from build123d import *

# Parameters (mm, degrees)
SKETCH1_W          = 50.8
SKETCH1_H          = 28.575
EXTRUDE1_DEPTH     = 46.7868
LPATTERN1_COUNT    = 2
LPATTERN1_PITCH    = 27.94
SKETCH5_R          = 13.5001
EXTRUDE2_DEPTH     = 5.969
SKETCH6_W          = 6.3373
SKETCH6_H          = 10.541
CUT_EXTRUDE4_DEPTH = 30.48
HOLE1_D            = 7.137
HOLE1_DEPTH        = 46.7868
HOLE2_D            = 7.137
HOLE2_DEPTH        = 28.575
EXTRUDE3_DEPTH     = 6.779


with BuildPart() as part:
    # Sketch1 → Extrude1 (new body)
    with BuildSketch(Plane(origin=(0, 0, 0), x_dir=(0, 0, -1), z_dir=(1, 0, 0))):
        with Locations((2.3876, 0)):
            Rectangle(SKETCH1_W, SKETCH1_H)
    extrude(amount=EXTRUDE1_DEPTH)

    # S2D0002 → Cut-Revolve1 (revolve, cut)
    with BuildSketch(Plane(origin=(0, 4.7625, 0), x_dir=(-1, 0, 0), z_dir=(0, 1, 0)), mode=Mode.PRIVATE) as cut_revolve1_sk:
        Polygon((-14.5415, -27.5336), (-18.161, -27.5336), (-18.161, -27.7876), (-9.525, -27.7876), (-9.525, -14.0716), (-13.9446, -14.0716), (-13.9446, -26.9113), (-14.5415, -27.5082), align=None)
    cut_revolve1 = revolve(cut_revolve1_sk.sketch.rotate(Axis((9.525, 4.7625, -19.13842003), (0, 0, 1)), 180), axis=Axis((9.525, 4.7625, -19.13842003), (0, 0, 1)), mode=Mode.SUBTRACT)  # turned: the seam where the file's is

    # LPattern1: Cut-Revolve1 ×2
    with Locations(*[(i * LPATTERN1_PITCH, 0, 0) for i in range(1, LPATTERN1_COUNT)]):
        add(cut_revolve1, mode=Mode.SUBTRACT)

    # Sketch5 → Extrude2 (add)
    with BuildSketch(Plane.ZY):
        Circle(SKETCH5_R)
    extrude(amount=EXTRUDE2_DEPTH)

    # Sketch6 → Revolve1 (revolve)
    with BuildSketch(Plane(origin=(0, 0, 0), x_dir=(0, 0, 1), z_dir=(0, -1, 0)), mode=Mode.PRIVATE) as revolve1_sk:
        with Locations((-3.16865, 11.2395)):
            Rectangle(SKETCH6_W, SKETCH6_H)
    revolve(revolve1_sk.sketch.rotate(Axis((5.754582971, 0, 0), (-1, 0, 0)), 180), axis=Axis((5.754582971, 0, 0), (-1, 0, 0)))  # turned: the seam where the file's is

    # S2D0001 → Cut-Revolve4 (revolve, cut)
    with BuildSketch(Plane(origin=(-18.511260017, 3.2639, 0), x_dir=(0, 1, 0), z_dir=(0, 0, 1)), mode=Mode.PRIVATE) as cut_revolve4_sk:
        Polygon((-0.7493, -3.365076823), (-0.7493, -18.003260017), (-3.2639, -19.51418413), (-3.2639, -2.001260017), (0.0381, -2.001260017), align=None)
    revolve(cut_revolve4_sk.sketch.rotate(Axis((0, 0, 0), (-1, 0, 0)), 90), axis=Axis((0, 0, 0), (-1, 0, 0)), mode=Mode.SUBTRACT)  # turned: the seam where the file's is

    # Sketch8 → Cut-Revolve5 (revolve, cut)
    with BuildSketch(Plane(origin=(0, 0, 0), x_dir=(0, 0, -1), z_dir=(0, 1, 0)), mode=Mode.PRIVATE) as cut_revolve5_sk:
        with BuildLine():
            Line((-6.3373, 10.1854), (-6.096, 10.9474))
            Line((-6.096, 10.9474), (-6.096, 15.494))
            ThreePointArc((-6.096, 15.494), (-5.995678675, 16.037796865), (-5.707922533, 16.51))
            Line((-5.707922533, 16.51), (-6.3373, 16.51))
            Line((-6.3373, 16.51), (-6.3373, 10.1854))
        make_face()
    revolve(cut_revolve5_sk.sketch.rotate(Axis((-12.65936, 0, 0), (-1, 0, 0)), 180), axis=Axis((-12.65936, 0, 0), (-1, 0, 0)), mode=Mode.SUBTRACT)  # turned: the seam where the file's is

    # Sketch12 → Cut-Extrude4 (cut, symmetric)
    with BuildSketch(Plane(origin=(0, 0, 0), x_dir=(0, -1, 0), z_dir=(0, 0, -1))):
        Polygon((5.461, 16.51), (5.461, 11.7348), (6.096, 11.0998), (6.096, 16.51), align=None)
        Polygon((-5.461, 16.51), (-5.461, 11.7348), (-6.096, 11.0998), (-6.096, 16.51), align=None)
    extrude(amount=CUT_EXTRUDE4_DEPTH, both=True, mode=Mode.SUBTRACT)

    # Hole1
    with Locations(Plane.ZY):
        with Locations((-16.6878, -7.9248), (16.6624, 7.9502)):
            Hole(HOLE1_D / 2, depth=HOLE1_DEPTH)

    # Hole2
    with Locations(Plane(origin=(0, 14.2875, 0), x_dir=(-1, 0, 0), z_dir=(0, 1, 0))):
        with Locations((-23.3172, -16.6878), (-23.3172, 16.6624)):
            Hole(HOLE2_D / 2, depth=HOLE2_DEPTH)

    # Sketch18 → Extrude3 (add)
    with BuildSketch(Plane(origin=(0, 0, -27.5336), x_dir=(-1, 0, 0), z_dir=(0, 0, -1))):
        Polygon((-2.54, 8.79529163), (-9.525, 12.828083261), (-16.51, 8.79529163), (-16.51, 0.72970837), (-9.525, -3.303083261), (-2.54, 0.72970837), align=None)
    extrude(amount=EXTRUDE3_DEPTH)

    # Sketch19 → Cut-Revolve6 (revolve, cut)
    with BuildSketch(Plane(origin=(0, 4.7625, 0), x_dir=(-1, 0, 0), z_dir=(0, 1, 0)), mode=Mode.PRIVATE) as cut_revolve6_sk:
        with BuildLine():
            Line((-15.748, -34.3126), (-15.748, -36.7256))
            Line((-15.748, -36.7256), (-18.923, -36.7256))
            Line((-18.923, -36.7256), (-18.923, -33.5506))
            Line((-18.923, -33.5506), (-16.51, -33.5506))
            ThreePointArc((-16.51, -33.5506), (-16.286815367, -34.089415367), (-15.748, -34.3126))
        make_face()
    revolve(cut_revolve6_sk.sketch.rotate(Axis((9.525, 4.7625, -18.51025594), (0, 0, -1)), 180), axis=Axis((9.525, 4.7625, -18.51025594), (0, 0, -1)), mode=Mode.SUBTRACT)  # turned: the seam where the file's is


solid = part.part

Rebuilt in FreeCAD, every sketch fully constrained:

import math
import FreeCAD as App
import Part
import Sketcher
from FreeCAD import Vector
Q = App.Units.Quantity


def add_polygon(sketch, points):
    """Adds a closed chain of lines whose ends are joined by coincident constraints."""
    first, n = sketch.GeometryCount, len(points)
    for a, b in zip(points, points[1:] + points[:1]):
        sketch.addGeometry(Part.LineSegment(App.Vector(*a, 0), App.Vector(*b, 0)), False)
    for i in range(n):
        sketch.addConstraint(Sketcher.Constraint("Coincident", first + i, 2, first + (i + 1) % n, 1))

doc = App.newDocument("Part")
body = doc.addObject("PartDesign::Body", "Body")

sketch1 = body.newObject("Sketcher::SketchObject", "Sketch")
sketch1.AttachmentSupport = (doc.getObject("YZ_Plane"), [""])
sketch1.MapMode = "FlatFace"
add_polygon(sketch1, [(14, 23), (-14, 23), (-14, -28), (14, -28)])
sketch1.addConstraint([
    Sketcher.Constraint("Horizontal", 0),
    Sketcher.Constraint("Vertical", 1),
    Sketcher.Constraint("Horizontal", 2),
    Sketcher.Constraint("Vertical", 3),
    Sketcher.Constraint("DistanceY", 1, 2, 1, 1, Q("2 in")),
    Sketcher.Constraint("DistanceX", 0, 2, 0, 1, Q("1.125 in")),
    Sketcher.Constraint("DistanceX", 0, 2, -1, 1, Q("0.5625 in")),
    Sketcher.Constraint("DistanceY", -1, 1, 0, 2, Q("0.906 in")),
])
pad1 = body.newObject("PartDesign::Pad", "Pad")
pad1.Profile = sketch1
pad1.Length = Q("1.842 in")

sketch2 = body.newObject("Sketcher::SketchObject", "Sketch001")
sketch2.AttachmentSupport = (doc.getObject("XZ_Plane"), [""])
sketch2.MapMode = "FlatFace"
sketch2.AttachmentOffset = App.Placement(Vector(0, 0, -0.1875 * 25.4), App.Rotation())
add_polygon(sketch2, [(14.541, -27.534), (18.161, -27.534), (18.161, -27.788), (9.525, -27.788), (9.525, -14.072), (13.945, -14.072), (13.945, -26.911), (14.541, -27.508)])
sketch2.addGeometry(Part.LineSegment(Vector(9.525, -27.788, 0), Vector(9.525, -14.072, 0)), True)
sketch2.addConstraint([
    Sketcher.Constraint("Horizontal", 0),
    Sketcher.Constraint("Vertical", 1),
    Sketcher.Constraint("Horizontal", 2),
    Sketcher.Constraint("Vertical", 3),
    Sketcher.Constraint("Horizontal", 4),
    Sketcher.Constraint("Vertical", 5),
    Sketcher.Constraint("Vertical", 7),
    Sketcher.Constraint("Vertical", 8),
    Sketcher.Constraint("Coincident", 8, 1, 2, 2),
    Sketcher.Constraint("Horizontal", 4, 2, 8, 2),
    Sketcher.Constraint("Angle", 6, Q("-45 deg")),
    Sketcher.Constraint("DistanceX", 2, 2, 2, 1, Q("0.34 in")),
    Sketcher.Constraint("DistanceY", 1, 2, 1, 1, Q("0.01 in")),
    Sketcher.Constraint("DistanceY", 3, 1, 3, 2, Q("0.54 in")),
    Sketcher.Constraint("DistanceX", 4, 1, 4, 2, Q("0.174 in")),
    Sketcher.Constraint("DistanceY", 7, 2, 7, 1, Q("0.001 in")),
    Sketcher.Constraint("DistanceX", 0, 1, 0, 2, Q("0.1425 in")),
    Sketcher.Constraint("DistanceX", -1, 1, 0, 2, Q("0.715 in")),
    Sketcher.Constraint("DistanceY", 0, 2, -1, 1, Q("1.084 in")),
])
groove = body.newObject("PartDesign::Groove", "Groove")
groove.Profile = sketch2
groove.ReferenceAxis = (sketch2, ["Axis0"])
groove.Angle = 360
doc.recompute()

linearpattern = body.newObject("PartDesign::LinearPattern", "LinearPattern")
linearpattern.Originals = [groove]
linearpattern.Direction = (doc.getObject("X_Axis"), [""])
linearpattern.Mode = "offset"
linearpattern.Offset = Q("1.1 in")
linearpattern.Occurrences = 2
body.Tip = linearpattern

sketch3 = body.newObject("Sketcher::SketchObject", "Sketch002")
sketch3.AttachmentSupport = (doc.getObject("YZ_Plane"), [""])
sketch3.MapMode = "FlatFace"
sketch3.addGeometry(Part.Circle(Vector(0, 0, 0), Vector(0, 0, 1), 14), False)
sketch3.addConstraint([
    Sketcher.Constraint("Coincident", 0, 3, -1, 1),
    Sketcher.Constraint("Diameter", 0, Q("1.063 in")),
])
pad2 = body.newObject("PartDesign::Pad", "Pad001")
pad2.Profile = sketch3
pad2.Length = Q("0.235 in")
pad2.Reversed = True

sketch4 = body.newObject("Sketcher::SketchObject", "Sketch003")
sketch4.AttachmentSupport = (doc.getObject("XZ_Plane"), [""])
sketch4.MapMode = "FlatFace"
add_polygon(sketch4, [(-17, -6), (-6, -6), (-6, 0), (-17, 0)])
sketch4.addConstraint([
    Sketcher.Constraint("Horizontal", 0),
    Sketcher.Constraint("Vertical", 1),
    Sketcher.Constraint("Horizontal", 2),
    Sketcher.Constraint("Vertical", 3),
    Sketcher.Constraint("PointOnObject", 1, 2, -1),
    Sketcher.Constraint("DistanceX", 0, 1, 0, 2, Q("0.415 in")),
    Sketcher.Constraint("DistanceX", 2, 2, -1, 1, Q("0.65 in")),
    Sketcher.Constraint("DistanceY", 1, 1, 1, 2, Q("0.2495 in")),
])
revolution = body.newObject("PartDesign::Revolution", "Revolution")
revolution.Profile = sketch4
revolution.ReferenceAxis = (sketch4, ["H_Axis"])
revolution.Angle = 360

sketch5 = body.newObject("Sketcher::SketchObject", "Sketch004")
sketch5.AttachmentSupport = (doc.getObject("XY_Plane"), [""])
sketch5.MapMode = "FlatFace"
add_polygon(sketch5, [(-0.5, 2.5), (-15.1, 2.5), (-16.5, 3.3), (-16.5, 0), (1, 0)])
sketch5.addConstraint([
    Sketcher.Constraint("Horizontal", 0),
    Sketcher.Constraint("Vertical", 2),
    Sketcher.Constraint("Horizontal", 3),
    Sketcher.Constraint("PointOnObject", 2, 2, -1),
    Sketcher.Constraint("Angle", 1, Q("150 deg")),
    Sketcher.Constraint("Angle", 4, Q("121 deg")),
    Sketcher.Constraint("DistanceY", 2, 2, 2, 1, Q("0.13 in")),
    Sketcher.Constraint("DistanceX", 1, 2, -1, 1, Q("0.65 in")),
    Sketcher.Constraint("DistanceX", 4, 2, -1, 1, Q("0.02 in")),
    Sketcher.Constraint("Distance", 1, Q("0.062 in")),
])
groove2 = body.newObject("PartDesign::Groove", "Groove001")
groove2.Profile = sketch5
groove2.ReferenceAxis = (sketch5, ["H_Axis"])
groove2.Angle = 360

sketch6 = body.newObject("Sketcher::SketchObject", "Sketch005")
sketch6.AttachmentSupport = (doc.getObject("XZ_Plane"), [""])
sketch6.MapMode = "FlatFace"
sketch6.addGeometry([
    Part.LineSegment(Vector(-10.2, 6.3, 0), Vector(-10.9, 6.1, 0)),
    Part.LineSegment(Vector(-10.9, 6.1, 0), Vector(-15.5, 6.1, 0)),
    Part.ArcOfCircle(Part.Circle(Vector(-15.5, 4.6, 0), Vector(0, 0, 1), 1.5), math.radians(90), math.radians(132)),
    Part.LineSegment(Vector(-16.5, 5.7, 0), Vector(-16.5, 6.3, 0)),
    Part.LineSegment(Vector(-16.5, 6.3, 0), Vector(-10.2, 6.3, 0)),
], False)
sketch6.addConstraint([
    Sketcher.Constraint("Coincident", 0, 2, 1, 1),
    Sketcher.Constraint("Tangent", 1, 2, 2, 1),
    Sketcher.Constraint("Coincident", 2, 2, 3, 1),
    Sketcher.Constraint("Coincident", 3, 2, 4, 1),
    Sketcher.Constraint("Coincident", 4, 2, 0, 1),
    Sketcher.Constraint("Horizontal", 1),
    Sketcher.Constraint("Vertical", 3),
    Sketcher.Constraint("Horizontal", 4),
    Sketcher.Constraint("Radius", 2, Q("0.06 in")),
    Sketcher.Constraint("DistanceX", 1, 2, 1, 1, Q("0.179 in")),
    Sketcher.Constraint("DistanceX", 4, 1, 4, 2, Q("0.249 in")),
    Sketcher.Constraint("DistanceX", 2, 3, -1, 1, Q("0.61 in")),
    Sketcher.Constraint("DistanceY", -1, 1, 2, 3, Q("0.18 in")),
    Sketcher.Constraint("DistanceX", 2, 2, -1, 1, Q("0.65 in")),
    Sketcher.Constraint("DistanceY", -1, 1, 3, 2, Q("0.2495 in")),
])
groove3 = body.newObject("PartDesign::Groove", "Groove002")
groove3.Profile = sketch6
groove3.ReferenceAxis = (sketch6, ["H_Axis"])
groove3.Angle = 360

sketch7 = body.newObject("Sketcher::SketchObject", "Sketch006")
sketch7.AttachmentSupport = (doc.getObject("XY_Plane"), [""])
sketch7.MapMode = "FlatFace"
add_polygon(sketch7, [(-16.5, -5.5), (-11.7, -5.5), (-11.1, -6.1), (-16.5, -6.1)])
add_polygon(sketch7, [(-11.7, 5.5), (-16.5, 5.5), (-16.5, 6.1), (-11.1, 6.1)])
sketch7.addConstraint([
    Sketcher.Constraint("Horizontal", 0),
    Sketcher.Constraint("Horizontal", 2),
    Sketcher.Constraint("Vertical", 3),
    Sketcher.Constraint("Horizontal", 4),
    Sketcher.Constraint("Vertical", 5),
    Sketcher.Constraint("Horizontal", 6),
    Sketcher.Constraint("Symmetric", 3, 2, 4, 2, -1),
    Sketcher.Constraint("Symmetric", 1, 2, 6, 2, -1),
    Sketcher.Constraint("Perpendicular", 1, 7),
    Sketcher.Constraint("Vertical", 0, 2, 7, 2),
    Sketcher.Constraint("DistanceX", 0, 1, 0, 2, Q("0.188 in")),
    Sketcher.Constraint("DistanceX", 2, 2, 2, 1, Q("0.213 in")),
    Sketcher.Constraint("DistanceY", 1, 2, -1, 1, Q("0.24 in")),
    Sketcher.Constraint("DistanceX", 2, 2, -1, 1, Q("0.65 in")),
])
pocket1 = body.newObject("PartDesign::Pocket", "Pocket")
pocket1.Profile = sketch7
pocket1.Length = Q("2.4 in")
pocket1.Midplane = True

sketch8 = body.newObject("Sketcher::SketchObject", "Sketch007")
sketch8.AttachmentSupport = (doc.getObject("YZ_Plane"), [""])
sketch8.MapMode = "FlatFace"
sketch8.addGeometry([
    Part.Circle(Vector(-7.9, -16.7, 0), Vector(0, 0, 1), 3.6),
    Part.Circle(Vector(8, 16.7, 0), Vector(0, 0, 1), 3.6),
], False)
sketch8.addConstraint([
    Sketcher.Constraint("Equal", 0, 1),
    Sketcher.Constraint("Diameter", 0, 7.137),
    Sketcher.Constraint("DistanceX", 0, 3, -1, 1, Q("0.312 in")),
    Sketcher.Constraint("DistanceY", 0, 3, -1, 1, Q("0.657 in")),
    Sketcher.Constraint("DistanceX", -1, 1, 1, 3, Q("0.313 in")),
    Sketcher.Constraint("DistanceY", -1, 1, 1, 3, Q("0.656 in")),
])
doc.recompute()
hole = body.newObject("PartDesign::Hole", "Hole")
hole.Profile = sketch8
hole.ThreadType = "None"
hole.Diameter = 7.137
hole.DepthType = "Dimension"
hole.Depth = Q("1.842 in")
hole.DrillPoint = "Flat"
hole.Reversed = True

sketch9 = body.newObject("Sketcher::SketchObject", "Sketch008")
sketch9.AttachmentSupport = (doc.getObject("XZ_Plane"), [""])
sketch9.MapMode = "FlatFace"
sketch9.AttachmentOffset = App.Placement(Vector(0, 0, -0.5625 * 25.4), App.Rotation())
sketch9.addGeometry([
    Part.Circle(Vector(23.3, -16.7, 0), Vector(0, 0, 1), 3.6),
    Part.Circle(Vector(23.3, 16.7, 0), Vector(0, 0, 1), 3.6),
], False)
sketch9.addConstraint([
    Sketcher.Constraint("Equal", 0, 1),
    Sketcher.Constraint("Vertical", 0, 3, 1, 3),
    Sketcher.Constraint("Diameter", 0, 7.137),
    Sketcher.Constraint("DistanceX", -1, 1, 0, 3, Q("0.918 in")),
    Sketcher.Constraint("DistanceY", 0, 3, -1, 1, Q("0.657 in")),
    Sketcher.Constraint("DistanceY", -1, 1, 1, 3, Q("0.656 in")),
])
doc.recompute()
hole2 = body.newObject("PartDesign::Hole", "Hole001")
hole2.Profile = sketch9
hole2.ThreadType = "None"
hole2.Diameter = 7.137
hole2.DepthType = "Dimension"
hole2.Depth = Q("1.125 in")
hole2.DrillPoint = "Flat"
hole2.Reversed = True

sketch10 = body.newObject("Sketcher::SketchObject", "Sketch009")
sketch10.AttachmentSupport = (doc.getObject("XY_Plane"), [""])
sketch10.MapMode = "FlatFace"
sketch10.AttachmentOffset = App.Placement(Vector(0, 0, -1.084 * 25.4), App.Rotation())
add_polygon(sketch10, [(3, 9), (10, 13), (17, 9), (17, 1), (10, -3), (3, 1)])
sketch10.addConstraint([
    Sketcher.Constraint("Vertical", 2),
    Sketcher.Constraint("Vertical", 5),
    Sketcher.Constraint("Parallel", 0, 3),
    Sketcher.Constraint("Parallel", 1, 4),
    Sketcher.Constraint("Horizontal", 2, 2, 4, 2),
    Sketcher.Constraint("Horizontal", 1, 2, 5, 2),
    Sketcher.Constraint("Vertical", 0, 2, 3, 2),
    Sketcher.Constraint("Angle", 0, Q("30 deg")),
    Sketcher.Constraint("DistanceX", -1, 1, 4, 2, Q("0.1 in")),
    Sketcher.Constraint("DistanceX", -1, 1, 1, 2, Q("0.65 in")),
    Sketcher.Constraint("DistanceY", 2, 2, 2, 1, 8.065583),
    Sketcher.Constraint("DistanceY", -1, 1, 1, 2, 8.795292),
])
pad3 = body.newObject("PartDesign::Pad", "Pad002")
pad3.Profile = sketch10
pad3.Length = 6.779
pad3.Reversed = True

sketch11 = body.newObject("Sketcher::SketchObject", "Sketch010")
sketch11.AttachmentSupport = (doc.getObject("XZ_Plane"), [""])
sketch11.MapMode = "FlatFace"
sketch11.AttachmentOffset = App.Placement(Vector(0, 0, -0.1875 * 25.4), App.Rotation())
sketch11.addGeometry([
    Part.LineSegment(Vector(15.7, -36.7, 0), Vector(15.7, -34.3, 0)),
    Part.ArcOfCircle(Part.Circle(Vector(15.7, -33.6, 0), Vector(0, 0, 1), 0.8), math.radians(-90), math.radians(0)),
    Part.LineSegment(Vector(16.5, -33.6, 0), Vector(18.9, -33.6, 0)),
    Part.LineSegment(Vector(18.9, -33.6, 0), Vector(18.9, -36.7, 0)),
    Part.LineSegment(Vector(18.9, -36.7, 0), Vector(15.7, -36.7, 0)),
], False)
sketch11.addGeometry(Part.LineSegment(Vector(9.5, -33.6, 0), Vector(9.5, -36.7, 0)), True)
sketch11.addConstraint([
    Sketcher.Constraint("Coincident", 0, 2, 1, 1),
    Sketcher.Constraint("Coincident", 1, 2, 2, 1),
    Sketcher.Constraint("Coincident", 2, 2, 3, 1),
    Sketcher.Constraint("Coincident", 3, 2, 4, 1),
    Sketcher.Constraint("Coincident", 4, 2, 0, 1),
    Sketcher.Constraint("Vertical", 0),
    Sketcher.Constraint("Horizontal", 2),
    Sketcher.Constraint("Vertical", 3),
    Sketcher.Constraint("Horizontal", 4),
    Sketcher.Constraint("Vertical", 5),
    Sketcher.Constraint("Horizontal", 2, 2, 5, 1),
    Sketcher.Constraint("Horizontal", 4, 2, 5, 2),
    Sketcher.Constraint("Vertical", 1, 3, 0, 2),
    Sketcher.Constraint("Equal", 2, 0),
    Sketcher.Constraint("Equal", 4, 3),
    Sketcher.Constraint("Radius", 1, Q("0.03 in")),
    Sketcher.Constraint("DistanceX", 2, 1, 2, 2, Q("0.095 in")),
    Sketcher.Constraint("DistanceX", -1, 1, 1, 3, Q("0.62 in")),
    Sketcher.Constraint("DistanceX", 5, 1, 2, 2, Q("0.37 in")),
    Sketcher.Constraint("DistanceY", 1, 3, -1, 1, 33.5506),
])
groove4 = body.newObject("PartDesign::Groove", "Groove003")
groove4.Profile = sketch11
groove4.ReferenceAxis = (sketch11, ["Axis0"])
groove4.Angle = 360

doc.recompute()
